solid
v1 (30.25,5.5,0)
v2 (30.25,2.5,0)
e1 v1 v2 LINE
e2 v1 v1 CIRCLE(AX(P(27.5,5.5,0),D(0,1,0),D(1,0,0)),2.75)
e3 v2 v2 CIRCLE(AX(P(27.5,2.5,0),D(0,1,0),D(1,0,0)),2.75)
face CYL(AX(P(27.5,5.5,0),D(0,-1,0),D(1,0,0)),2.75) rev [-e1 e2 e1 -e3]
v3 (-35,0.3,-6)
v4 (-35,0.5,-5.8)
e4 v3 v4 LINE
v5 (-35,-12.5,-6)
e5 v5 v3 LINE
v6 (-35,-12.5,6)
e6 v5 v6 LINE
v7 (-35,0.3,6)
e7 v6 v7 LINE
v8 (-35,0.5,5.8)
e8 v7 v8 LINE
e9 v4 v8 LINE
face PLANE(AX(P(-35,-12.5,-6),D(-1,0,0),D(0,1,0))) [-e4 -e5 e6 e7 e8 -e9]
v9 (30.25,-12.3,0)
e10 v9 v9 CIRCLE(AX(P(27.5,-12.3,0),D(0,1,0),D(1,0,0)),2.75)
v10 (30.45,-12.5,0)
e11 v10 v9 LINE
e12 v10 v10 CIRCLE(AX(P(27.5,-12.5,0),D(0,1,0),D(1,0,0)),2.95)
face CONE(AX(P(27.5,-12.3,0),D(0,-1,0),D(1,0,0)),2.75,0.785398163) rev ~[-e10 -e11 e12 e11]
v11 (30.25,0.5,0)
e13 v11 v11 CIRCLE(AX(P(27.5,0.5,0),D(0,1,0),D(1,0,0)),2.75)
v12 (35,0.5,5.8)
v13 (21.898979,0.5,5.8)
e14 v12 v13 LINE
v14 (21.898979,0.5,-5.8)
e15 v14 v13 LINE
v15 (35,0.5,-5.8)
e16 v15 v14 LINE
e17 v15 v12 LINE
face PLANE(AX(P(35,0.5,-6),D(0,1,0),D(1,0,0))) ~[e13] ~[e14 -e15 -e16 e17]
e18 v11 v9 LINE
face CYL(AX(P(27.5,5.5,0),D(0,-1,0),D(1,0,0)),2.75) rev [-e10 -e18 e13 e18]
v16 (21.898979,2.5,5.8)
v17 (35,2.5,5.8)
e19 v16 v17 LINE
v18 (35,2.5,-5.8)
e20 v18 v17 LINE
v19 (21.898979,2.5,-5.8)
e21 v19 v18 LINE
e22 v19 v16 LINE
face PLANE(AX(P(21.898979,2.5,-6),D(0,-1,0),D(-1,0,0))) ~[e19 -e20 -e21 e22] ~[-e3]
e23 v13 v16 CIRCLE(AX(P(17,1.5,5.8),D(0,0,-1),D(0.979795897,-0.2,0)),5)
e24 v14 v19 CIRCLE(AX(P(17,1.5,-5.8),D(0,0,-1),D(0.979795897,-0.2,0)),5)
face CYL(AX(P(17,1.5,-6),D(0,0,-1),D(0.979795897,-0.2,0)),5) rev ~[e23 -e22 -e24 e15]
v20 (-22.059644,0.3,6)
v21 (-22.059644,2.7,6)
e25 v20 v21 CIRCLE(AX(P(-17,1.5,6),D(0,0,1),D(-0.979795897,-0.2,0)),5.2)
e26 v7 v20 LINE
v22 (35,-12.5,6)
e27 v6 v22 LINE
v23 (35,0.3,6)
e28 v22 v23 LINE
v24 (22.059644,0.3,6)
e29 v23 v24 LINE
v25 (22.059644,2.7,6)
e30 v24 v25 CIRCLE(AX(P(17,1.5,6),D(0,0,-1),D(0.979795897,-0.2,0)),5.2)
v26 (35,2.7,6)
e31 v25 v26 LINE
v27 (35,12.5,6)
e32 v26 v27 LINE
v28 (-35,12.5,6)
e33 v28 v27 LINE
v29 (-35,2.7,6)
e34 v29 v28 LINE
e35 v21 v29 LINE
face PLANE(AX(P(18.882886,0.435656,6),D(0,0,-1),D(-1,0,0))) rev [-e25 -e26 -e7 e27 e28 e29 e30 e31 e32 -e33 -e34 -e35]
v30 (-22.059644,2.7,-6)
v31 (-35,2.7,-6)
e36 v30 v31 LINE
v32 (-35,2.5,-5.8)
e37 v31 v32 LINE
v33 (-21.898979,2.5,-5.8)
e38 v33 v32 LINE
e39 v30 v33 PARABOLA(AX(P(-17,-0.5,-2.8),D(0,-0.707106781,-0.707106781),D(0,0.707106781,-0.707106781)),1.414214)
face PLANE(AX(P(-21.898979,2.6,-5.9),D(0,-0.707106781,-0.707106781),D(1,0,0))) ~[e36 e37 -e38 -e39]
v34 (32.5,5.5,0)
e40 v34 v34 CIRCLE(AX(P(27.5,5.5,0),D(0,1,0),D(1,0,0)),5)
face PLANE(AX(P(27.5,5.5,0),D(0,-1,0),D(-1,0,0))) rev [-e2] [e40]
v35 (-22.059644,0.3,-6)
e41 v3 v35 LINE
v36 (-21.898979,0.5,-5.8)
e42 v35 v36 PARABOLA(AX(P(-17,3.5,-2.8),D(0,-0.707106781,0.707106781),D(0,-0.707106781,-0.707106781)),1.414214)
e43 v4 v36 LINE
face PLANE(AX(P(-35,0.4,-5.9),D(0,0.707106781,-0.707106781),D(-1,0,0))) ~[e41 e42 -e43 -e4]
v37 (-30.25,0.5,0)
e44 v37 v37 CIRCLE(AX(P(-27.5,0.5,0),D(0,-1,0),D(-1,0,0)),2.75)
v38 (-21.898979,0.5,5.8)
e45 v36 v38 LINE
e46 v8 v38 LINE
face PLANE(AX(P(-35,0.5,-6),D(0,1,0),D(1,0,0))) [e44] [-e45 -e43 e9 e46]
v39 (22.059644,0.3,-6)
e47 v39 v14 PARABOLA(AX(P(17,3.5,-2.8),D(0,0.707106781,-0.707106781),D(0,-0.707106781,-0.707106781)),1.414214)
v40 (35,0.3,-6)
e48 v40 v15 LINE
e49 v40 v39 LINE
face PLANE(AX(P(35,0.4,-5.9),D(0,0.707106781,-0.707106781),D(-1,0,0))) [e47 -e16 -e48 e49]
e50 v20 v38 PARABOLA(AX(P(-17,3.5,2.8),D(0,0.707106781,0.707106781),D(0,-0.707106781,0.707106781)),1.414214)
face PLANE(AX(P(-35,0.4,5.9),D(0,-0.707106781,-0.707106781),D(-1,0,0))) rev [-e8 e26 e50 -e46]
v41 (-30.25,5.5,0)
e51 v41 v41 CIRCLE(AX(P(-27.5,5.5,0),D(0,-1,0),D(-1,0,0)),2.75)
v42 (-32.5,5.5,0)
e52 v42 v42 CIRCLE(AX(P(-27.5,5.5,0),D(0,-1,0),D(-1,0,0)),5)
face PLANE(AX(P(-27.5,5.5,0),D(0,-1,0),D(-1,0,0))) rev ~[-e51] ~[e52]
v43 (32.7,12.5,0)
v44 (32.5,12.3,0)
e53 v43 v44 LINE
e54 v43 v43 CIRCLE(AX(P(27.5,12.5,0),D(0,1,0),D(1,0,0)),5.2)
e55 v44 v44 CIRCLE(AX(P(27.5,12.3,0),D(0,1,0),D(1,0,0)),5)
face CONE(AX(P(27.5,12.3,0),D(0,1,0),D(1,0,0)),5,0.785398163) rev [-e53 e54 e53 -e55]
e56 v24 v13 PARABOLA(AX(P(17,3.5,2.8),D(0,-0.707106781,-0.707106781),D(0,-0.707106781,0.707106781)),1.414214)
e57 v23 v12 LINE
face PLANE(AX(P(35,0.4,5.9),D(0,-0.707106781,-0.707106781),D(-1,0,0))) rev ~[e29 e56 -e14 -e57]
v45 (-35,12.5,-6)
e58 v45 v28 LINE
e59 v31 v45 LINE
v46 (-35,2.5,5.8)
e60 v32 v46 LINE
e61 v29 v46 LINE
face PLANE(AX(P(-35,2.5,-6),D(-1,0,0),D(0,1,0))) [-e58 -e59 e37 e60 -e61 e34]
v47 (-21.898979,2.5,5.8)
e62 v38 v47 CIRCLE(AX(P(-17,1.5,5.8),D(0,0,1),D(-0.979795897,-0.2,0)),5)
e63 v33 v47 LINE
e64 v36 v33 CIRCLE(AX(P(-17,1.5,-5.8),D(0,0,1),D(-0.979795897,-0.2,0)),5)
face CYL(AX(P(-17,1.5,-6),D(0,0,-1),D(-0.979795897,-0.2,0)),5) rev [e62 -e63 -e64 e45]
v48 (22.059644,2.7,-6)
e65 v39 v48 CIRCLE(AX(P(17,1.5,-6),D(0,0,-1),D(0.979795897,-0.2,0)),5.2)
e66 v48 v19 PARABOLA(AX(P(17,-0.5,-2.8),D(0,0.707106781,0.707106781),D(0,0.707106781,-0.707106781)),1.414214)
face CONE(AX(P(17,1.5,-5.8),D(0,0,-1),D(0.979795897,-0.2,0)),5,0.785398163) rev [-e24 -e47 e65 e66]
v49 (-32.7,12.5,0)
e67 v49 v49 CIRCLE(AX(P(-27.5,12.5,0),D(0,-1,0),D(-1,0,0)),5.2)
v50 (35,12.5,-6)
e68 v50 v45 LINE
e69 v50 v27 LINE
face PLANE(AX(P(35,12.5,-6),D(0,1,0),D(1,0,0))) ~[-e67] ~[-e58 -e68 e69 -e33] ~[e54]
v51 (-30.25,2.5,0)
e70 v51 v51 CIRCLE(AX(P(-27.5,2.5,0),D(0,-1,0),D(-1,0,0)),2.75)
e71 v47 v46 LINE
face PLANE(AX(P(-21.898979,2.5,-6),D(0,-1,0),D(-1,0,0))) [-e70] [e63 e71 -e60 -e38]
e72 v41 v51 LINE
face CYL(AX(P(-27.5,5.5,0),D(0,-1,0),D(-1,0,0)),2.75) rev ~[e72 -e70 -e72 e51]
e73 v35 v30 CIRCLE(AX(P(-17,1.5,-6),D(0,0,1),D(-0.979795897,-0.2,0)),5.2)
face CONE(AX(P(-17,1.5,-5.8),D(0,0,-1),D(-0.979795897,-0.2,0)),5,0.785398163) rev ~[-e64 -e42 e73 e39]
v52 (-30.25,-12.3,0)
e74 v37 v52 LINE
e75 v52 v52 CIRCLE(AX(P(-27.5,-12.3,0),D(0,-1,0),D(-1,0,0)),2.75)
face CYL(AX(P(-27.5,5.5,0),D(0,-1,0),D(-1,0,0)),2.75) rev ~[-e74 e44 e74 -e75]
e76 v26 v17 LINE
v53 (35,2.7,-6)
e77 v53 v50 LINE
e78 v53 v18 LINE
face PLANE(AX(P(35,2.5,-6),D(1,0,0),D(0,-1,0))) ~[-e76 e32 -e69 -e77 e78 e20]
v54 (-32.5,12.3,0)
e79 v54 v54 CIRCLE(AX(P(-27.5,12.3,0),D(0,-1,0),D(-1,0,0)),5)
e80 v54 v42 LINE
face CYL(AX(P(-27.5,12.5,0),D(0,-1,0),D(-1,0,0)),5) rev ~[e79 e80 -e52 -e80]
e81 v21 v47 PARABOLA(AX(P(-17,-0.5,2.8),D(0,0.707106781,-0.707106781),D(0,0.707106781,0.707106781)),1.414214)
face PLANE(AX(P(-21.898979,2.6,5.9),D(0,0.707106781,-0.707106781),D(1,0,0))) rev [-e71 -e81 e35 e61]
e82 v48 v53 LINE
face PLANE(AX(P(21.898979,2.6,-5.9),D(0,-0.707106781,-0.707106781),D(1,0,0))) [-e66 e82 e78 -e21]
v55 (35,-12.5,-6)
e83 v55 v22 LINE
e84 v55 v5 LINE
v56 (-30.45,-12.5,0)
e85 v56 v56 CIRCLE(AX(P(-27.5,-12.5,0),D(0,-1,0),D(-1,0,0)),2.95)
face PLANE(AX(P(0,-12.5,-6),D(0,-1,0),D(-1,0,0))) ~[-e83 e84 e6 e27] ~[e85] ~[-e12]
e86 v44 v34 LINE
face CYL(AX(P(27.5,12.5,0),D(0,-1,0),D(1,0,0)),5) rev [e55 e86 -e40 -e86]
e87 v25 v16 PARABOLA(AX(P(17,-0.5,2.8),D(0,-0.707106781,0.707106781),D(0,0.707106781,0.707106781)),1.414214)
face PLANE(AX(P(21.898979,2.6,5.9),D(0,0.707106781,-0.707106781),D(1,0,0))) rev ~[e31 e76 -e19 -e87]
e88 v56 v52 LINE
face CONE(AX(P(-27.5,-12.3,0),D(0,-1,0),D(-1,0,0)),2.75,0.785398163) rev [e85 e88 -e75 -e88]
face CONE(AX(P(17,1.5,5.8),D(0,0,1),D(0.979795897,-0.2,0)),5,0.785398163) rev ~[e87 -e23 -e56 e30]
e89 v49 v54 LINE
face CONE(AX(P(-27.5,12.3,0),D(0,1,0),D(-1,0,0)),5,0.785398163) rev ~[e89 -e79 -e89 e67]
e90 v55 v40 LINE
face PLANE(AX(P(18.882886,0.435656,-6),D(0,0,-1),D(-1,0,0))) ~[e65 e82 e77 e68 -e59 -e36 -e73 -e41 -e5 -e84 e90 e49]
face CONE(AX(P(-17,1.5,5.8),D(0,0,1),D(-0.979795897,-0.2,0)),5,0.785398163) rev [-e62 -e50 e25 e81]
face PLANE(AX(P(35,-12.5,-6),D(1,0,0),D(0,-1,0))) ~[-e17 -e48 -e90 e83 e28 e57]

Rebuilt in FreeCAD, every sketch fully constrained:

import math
import FreeCAD as App
import Part
import Sketcher
from FreeCAD import Vector


def edges_at(feature, points):
    """Names of the edges that pass closest to the given points."""
    edges = feature.Shape.Edges
    near = lambda p: min(range(len(edges)), key=lambda i: edges[i].distToShape(Part.Vertex(*p))[0])
    return sorted({f"Edge{near(p) + 1}" for p in points})

doc = App.newDocument("Part")
body = doc.addObject("PartDesign::Body", "Body")

# Sketch on XY plane
sketch1 = body.newObject("Sketcher::SketchObject", "Sketch")
sketch1.AttachmentSupport = (doc.getObject("XY_Plane"), [""])
sketch1.MapMode = "FlatFace"
sketch1.addGeometry(Part.LineSegment(Vector(0, 12.5, 0), Vector(-35, 12.5, 0)), False)
sketch1.addGeometry(Part.LineSegment(Vector(-35, 12.5, 0), Vector(-35, 2.5, 0)), False)
sketch1.addGeometry(Part.LineSegment(Vector(-35, 2.5, 0), Vector(-21.9, 2.5, 0)), False)
sketch1.addGeometry(Part.ArcOfCircle(Part.Circle(Vector(-17, 1.5, 0), Vector(0, 0, 1), 5), math.radians(-168), math.radians(168)), False)
sketch1.addGeometry(Part.LineSegment(Vector(-21.9, 0.5, 0), Vector(-35, 0.5, 0)), False)
sketch1.addGeometry(Part.LineSegment(Vector(-35, 0.5, 0), Vector(-35, -12.5, 0)), False)
sketch1.addGeometry(Part.LineSegment(Vector(-35, -12.5, 0), Vector(0, -12.5, 0)), False)
sketch1.addGeometry(Part.LineSegment(Vector(0, -12.5, 0), Vector(0, 12.5, 0)), False)
sketch1.addConstraint(Sketcher.Constraint("Coincident", 0, 2, 1, 1))
sketch1.addConstraint(Sketcher.Constraint("Coincident", 1, 2, 2, 1))
sketch1.addConstraint(Sketcher.Constraint("Coincident", 2, 2, 3, 2))
sketch1.addConstraint(Sketcher.Constraint("Coincident", 3, 1, 4, 1))
sketch1.addConstraint(Sketcher.Constraint("Coincident", 4, 2, 5, 1))
sketch1.addConstraint(Sketcher.Constraint("Coincident", 5, 2, 6, 1))
sketch1.addConstraint(Sketcher.Constraint("Coincident", 6, 2, 7, 1))
sketch1.addConstraint(Sketcher.Constraint("Coincident", 7, 2, 0, 1))
sketch1.addConstraint(Sketcher.Constraint("Horizontal", 0))
sketch1.addConstraint(Sketcher.Constraint("Vertical", 1))
sketch1.addConstraint(Sketcher.Constraint("Horizontal", 2))
sketch1.addConstraint(Sketcher.Constraint("Horizontal", 4))
sketch1.addConstraint(Sketcher.Constraint("Vertical", 5))
sketch1.addConstraint(Sketcher.Constraint("Horizontal", 6))
sketch1.addConstraint(Sketcher.Constraint("Vertical", 7))
sketch1.addConstraint(Sketcher.Constraint("Symmetric", 6, 2, 7, 2, -1, 1))
sketch1.addConstraint(Sketcher.Constraint("Vertical", 2, 2, 3, 1))
sketch1.addConstraint(Sketcher.Constraint("Vertical", 1, 2, 4, 2))
sketch1.addConstraint(Sketcher.Constraint("Radius", 3, 5.0))
sketch1.addConstraint(Sketcher.Constraint("DistanceX", 0, 2, 0, 1, 35.0))
sketch1.addConstraint(Sketcher.Constraint("DistanceY", 1, 2, 1, 1, 10.0))
sketch1.addConstraint(Sketcher.Constraint("DistanceY", 5, 2, 5, 1, 13.0))
sketch1.addConstraint(Sketcher.Constraint("DistanceY", 7, 1, 7, 2, 25.0))
sketch1.addConstraint(Sketcher.Constraint("DistanceX", 3, 3, -1, 1, 17.0))
pad1 = body.newObject("PartDesign::Pad", "Pad")
pad1.Profile = sketch1
pad1.Type = "TwoLengths"
pad1.Length = 6
pad1.Length2 = 6

# Sketch on XY plane
sketch2 = body.newObject("Sketcher::SketchObject", "Sketch001")
sketch2.AttachmentSupport = (doc.getObject("XY_Plane"), [""])
sketch2.MapMode = "FlatFace"
sketch2.addGeometry(Part.LineSegment(Vector(-32.5, 12.5, 0), Vector(-32.5, 5.5, 0)), False)
sketch2.addGeometry(Part.LineSegment(Vector(-32.5, 5.5, 0), Vector(-30.2, 5.5, 0)), False)
sketch2.addGeometry(Part.LineSegment(Vector(-30.2, 5.5, 0), Vector(-30.2, -12.5, 0)), False)
sketch2.addGeometry(Part.LineSegment(Vector(-30.2, -12.5, 0), Vector(-27.5, -12.5, 0)), False)
sketch2.addGeometry(Part.LineSegment(Vector(-27.5, -12.5, 0), Vector(-27.5, 12.5, 0)), False)
sketch2.addGeometry(Part.LineSegment(Vector(-27.5, 12.5, 0), Vector(-32.5, 12.5, 0)), False)
sketch2.addGeometry(Part.LineSegment(Vector(-27.5, 12.5, 0), Vector(-27.5, -12.5, 0)), True)  # axis
sketch2.addConstraint(Sketcher.Constraint("Coincident", 0, 2, 1, 1))
sketch2.addConstraint(Sketcher.Constraint("Coincident", 1, 2, 2, 1))
sketch2.addConstraint(Sketcher.Constraint("Coincident", 2, 2, 3, 1))
sketch2.addConstraint(Sketcher.Constraint("Coincident", 3, 2, 4, 1))
sketch2.addConstraint(Sketcher.Constraint("Coincident", 4, 2, 5, 1))
sketch2.addConstraint(Sketcher.Constraint("Coincident", 5, 2, 0, 1))
sketch2.addConstraint(Sketcher.Constraint("Vertical", 0))
sketch2.addConstraint(Sketcher.Constraint("Horizontal", 1))
sketch2.addConstraint(Sketcher.Constraint("Vertical", 2))
sketch2.addConstraint(Sketcher.Constraint("Horizontal", 3))
sketch2.addConstraint(Sketcher.Constraint("Vertical", 4))
sketch2.addConstraint(Sketcher.Constraint("Horizontal", 5))
sketch2.addConstraint(Sketcher.Constraint("Vertical", 6))
sketch2.addConstraint(Sketcher.Constraint("Coincident", 6, 1, 4, 2))
sketch2.addConstraint(Sketcher.Constraint("Horizontal", 2, 2, 6, 2))
sketch2.addConstraint(Sketcher.Constraint("DistanceX", 5, 2, 5, 1, 5.0))
sketch2.addConstraint(Sketcher.Constraint("DistanceY", 0, 2, 0, 1, 7.0))
sketch2.addConstraint(Sketcher.Constraint("DistanceY", 2, 2, 2, 1, 18.0))
sketch2.addConstraint(Sketcher.Constraint("DistanceX", 1, 1, 1, 2, 2.25))
sketch2.addConstraint(Sketcher.Constraint("DistanceX", 0, 2, -1, 1, 32.5))
sketch2.addConstraint(Sketcher.Constraint("DistanceY", -1, 1, 0, 2, 5.5))
groove = body.newObject("PartDesign::Groove", "Groove")
groove.Profile = sketch2
groove.ReferenceAxis = (sketch2, ["Axis0"])
groove.Angle = 360
doc.recompute()

chamfer = body.newObject("PartDesign::Chamfer", "Chamfer")
chamfer.Base = (groove, edges_at(groove, [
    (-12, 1.5, 6),
    (-28.449, 0.5, 6),
    (-28.449, 0.5, -6),
    (-12, 1.5, -6),
    (-28.449, 2.5, -6),
    (-24.75, -12.5, 0),
    (-22.5, 12.5, 0),
    (-28.449, 2.5, 6),
]))
chamfer.Size = 0.2
body2 = doc.addObject("PartDesign::Body", "Body001")
doc.recompute()

body2.BaseFeature = body
doc.recompute()

mirroring = doc.addObject("Part::Mirroring", "Mirroring")
mirroring.Source = body
mirroring.Base = Vector(0, 0, 0)
mirroring.Normal = Vector(1, 0, 0)
body3 = doc.addObject("PartDesign::Body", "Body002")
body3.BaseFeature = mirroring
boolean = body2.newObject("PartDesign::Boolean", "Boolean")
boolean.Type = "Fuse"
boolean.addObjects([body3])
doc.recompute()
mirroring.Visibility = False

doc.recompute()
